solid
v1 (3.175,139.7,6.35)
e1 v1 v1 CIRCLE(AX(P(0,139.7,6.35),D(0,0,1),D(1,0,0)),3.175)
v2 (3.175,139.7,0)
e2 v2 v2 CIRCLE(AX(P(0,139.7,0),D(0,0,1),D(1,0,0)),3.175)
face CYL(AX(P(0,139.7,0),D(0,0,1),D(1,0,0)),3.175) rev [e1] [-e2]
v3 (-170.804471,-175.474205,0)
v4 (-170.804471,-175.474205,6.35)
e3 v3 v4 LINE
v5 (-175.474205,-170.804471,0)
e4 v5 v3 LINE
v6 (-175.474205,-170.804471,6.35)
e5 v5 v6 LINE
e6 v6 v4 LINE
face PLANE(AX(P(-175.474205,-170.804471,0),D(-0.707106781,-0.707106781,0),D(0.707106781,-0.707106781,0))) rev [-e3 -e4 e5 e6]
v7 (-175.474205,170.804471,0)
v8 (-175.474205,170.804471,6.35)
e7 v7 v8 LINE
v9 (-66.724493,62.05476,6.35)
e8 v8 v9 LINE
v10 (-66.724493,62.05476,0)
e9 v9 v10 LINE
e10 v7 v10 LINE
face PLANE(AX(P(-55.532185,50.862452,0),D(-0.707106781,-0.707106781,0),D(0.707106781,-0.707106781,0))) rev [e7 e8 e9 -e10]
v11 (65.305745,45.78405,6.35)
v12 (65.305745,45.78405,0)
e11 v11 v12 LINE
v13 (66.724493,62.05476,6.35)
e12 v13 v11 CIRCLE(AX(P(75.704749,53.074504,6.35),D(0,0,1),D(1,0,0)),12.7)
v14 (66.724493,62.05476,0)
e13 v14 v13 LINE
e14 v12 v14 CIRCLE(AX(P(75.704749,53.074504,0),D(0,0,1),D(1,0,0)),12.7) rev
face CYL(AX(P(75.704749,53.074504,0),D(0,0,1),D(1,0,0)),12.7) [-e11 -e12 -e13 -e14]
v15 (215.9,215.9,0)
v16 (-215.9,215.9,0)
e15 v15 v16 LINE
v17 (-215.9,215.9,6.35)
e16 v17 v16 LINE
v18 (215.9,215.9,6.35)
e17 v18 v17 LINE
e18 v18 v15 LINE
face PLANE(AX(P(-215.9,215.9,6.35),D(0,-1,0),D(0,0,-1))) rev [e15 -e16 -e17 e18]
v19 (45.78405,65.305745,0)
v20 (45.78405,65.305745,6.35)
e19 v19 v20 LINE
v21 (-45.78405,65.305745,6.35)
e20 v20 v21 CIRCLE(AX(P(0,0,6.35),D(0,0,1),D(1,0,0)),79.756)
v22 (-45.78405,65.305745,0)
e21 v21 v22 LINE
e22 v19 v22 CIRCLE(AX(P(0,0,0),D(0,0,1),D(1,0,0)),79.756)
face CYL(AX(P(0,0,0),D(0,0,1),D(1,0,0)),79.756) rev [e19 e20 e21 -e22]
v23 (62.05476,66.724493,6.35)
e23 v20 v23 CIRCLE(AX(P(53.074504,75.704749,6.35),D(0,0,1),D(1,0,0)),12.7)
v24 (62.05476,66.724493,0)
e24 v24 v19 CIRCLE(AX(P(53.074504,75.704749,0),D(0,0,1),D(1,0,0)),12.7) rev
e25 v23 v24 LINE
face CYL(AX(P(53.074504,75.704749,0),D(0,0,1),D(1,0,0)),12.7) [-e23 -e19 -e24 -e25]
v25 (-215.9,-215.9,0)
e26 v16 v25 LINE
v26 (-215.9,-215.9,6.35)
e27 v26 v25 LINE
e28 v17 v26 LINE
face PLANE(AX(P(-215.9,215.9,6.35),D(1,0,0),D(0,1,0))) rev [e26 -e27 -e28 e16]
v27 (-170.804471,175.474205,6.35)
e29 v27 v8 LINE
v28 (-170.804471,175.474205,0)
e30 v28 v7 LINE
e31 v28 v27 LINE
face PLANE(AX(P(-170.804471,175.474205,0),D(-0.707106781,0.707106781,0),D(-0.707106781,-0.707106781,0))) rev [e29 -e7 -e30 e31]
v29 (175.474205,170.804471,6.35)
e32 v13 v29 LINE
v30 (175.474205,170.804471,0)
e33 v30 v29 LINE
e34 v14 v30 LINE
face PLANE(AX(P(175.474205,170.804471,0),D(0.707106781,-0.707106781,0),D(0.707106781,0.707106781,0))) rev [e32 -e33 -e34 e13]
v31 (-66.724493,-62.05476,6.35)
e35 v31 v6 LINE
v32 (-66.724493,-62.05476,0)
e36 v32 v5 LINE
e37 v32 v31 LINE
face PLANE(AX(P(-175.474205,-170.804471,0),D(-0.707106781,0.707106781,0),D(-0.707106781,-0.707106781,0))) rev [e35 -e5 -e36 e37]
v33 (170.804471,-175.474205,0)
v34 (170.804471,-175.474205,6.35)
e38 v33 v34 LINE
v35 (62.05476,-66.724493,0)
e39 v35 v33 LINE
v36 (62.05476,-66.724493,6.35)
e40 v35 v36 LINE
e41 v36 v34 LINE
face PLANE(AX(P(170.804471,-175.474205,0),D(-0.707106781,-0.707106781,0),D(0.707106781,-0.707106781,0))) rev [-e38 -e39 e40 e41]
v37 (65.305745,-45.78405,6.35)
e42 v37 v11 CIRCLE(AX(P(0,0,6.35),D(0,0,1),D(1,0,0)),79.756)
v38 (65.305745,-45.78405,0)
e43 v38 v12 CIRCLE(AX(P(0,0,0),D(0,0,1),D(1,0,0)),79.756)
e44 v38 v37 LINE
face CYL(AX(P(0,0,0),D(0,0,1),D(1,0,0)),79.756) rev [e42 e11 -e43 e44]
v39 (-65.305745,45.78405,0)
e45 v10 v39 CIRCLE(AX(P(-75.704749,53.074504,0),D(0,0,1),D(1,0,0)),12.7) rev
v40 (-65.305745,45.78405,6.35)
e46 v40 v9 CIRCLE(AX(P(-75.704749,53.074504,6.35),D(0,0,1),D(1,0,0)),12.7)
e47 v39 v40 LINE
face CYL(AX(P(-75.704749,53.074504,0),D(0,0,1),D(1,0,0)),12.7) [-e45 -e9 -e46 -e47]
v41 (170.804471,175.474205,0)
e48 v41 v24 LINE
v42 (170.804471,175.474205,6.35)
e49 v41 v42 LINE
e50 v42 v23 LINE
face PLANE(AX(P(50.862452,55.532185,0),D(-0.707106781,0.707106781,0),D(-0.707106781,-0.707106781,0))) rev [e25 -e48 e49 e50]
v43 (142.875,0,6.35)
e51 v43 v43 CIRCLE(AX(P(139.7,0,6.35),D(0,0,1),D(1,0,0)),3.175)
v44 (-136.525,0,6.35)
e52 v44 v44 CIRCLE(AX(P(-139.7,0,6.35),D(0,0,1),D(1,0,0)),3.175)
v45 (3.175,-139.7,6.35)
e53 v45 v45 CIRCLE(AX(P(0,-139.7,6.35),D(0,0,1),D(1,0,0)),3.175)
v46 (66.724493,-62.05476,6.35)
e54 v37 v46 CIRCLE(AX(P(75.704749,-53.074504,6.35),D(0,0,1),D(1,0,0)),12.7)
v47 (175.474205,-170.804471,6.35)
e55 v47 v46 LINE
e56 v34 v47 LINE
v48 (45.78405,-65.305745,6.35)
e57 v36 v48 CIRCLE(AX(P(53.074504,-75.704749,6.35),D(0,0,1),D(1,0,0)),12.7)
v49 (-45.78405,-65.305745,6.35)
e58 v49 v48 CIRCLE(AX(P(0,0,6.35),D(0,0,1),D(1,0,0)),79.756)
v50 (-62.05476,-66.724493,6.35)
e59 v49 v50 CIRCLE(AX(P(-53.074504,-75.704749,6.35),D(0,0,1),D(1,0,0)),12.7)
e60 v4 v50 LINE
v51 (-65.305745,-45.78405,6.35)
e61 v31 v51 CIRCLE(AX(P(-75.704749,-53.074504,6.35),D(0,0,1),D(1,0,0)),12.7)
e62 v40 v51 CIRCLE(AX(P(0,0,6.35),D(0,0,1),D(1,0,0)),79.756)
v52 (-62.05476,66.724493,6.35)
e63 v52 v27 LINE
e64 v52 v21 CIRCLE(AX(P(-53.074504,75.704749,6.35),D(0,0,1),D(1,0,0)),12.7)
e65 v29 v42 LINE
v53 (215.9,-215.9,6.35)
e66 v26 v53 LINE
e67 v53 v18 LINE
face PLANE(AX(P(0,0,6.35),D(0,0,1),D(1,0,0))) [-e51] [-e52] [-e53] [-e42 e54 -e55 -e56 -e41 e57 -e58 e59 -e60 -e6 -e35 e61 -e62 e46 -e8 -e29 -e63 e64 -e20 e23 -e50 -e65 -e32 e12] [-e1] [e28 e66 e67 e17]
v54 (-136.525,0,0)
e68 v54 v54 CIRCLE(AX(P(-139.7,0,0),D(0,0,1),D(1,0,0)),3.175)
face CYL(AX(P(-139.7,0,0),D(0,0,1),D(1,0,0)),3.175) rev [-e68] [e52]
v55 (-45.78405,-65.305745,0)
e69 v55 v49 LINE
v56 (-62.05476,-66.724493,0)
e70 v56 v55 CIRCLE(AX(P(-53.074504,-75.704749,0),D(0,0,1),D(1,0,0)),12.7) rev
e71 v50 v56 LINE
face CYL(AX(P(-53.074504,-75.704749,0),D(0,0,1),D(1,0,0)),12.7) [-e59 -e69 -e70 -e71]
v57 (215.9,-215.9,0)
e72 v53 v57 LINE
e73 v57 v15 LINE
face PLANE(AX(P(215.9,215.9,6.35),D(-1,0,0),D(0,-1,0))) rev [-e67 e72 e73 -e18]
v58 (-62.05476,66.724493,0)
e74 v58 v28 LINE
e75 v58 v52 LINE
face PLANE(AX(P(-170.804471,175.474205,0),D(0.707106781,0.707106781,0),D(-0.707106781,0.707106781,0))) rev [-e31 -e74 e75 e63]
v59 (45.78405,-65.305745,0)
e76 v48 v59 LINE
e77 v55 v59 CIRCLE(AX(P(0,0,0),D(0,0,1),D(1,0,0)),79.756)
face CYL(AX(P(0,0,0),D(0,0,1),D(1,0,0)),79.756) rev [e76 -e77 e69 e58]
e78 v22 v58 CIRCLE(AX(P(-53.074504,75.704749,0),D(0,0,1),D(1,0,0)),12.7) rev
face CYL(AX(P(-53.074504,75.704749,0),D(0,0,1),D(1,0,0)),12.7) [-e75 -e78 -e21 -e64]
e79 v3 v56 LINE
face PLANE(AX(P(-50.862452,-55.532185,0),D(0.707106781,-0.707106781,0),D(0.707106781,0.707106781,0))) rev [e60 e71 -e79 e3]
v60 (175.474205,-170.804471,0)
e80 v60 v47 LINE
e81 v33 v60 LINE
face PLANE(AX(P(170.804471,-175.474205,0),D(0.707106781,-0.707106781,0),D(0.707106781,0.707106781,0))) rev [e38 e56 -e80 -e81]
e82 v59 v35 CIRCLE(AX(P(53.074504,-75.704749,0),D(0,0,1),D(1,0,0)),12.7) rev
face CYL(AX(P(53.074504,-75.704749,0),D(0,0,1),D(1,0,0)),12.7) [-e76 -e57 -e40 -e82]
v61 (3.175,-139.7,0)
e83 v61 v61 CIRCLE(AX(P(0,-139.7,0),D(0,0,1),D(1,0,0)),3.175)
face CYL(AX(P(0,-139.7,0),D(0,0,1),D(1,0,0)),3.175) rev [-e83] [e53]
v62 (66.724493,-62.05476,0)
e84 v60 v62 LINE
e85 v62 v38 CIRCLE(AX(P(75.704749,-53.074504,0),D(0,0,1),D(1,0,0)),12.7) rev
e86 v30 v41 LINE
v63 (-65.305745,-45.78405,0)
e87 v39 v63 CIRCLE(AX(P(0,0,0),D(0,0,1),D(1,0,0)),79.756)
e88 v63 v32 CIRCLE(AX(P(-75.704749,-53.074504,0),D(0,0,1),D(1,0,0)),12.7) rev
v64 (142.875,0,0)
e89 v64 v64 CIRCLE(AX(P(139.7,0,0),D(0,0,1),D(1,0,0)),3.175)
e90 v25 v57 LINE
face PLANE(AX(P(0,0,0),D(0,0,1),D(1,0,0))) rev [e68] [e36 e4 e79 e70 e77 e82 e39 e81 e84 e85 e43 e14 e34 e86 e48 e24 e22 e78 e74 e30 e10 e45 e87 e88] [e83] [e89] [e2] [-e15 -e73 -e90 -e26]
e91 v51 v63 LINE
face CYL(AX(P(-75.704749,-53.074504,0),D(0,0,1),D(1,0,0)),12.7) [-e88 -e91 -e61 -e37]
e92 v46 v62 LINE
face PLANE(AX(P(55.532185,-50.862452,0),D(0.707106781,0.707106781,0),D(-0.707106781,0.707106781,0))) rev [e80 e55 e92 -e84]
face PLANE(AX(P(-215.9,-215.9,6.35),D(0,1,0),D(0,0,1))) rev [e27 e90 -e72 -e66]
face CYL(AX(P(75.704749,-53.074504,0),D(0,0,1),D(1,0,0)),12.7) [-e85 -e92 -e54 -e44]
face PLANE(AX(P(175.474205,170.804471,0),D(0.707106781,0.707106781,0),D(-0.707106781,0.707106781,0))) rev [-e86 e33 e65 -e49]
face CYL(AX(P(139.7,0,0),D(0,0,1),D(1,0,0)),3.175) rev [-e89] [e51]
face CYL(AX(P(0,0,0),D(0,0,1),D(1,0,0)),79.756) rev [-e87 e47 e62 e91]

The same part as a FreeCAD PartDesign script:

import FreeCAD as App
import Part
import Sketcher

V = App.Vector
Q = App.Units.Quantity


def edges_at(feature, points):
    """Names of the edges that pass closest to the given points."""
    edges = feature.Shape.Edges
    near = lambda p: min(range(len(edges)), key=lambda i: edges[i].distToShape(Part.Vertex(*p))[0])
    return sorted({f"Edge{near(p) + 1}" for p in points})

doc = App.newDocument("Part")
params = doc.addObject("Spreadsheet::Sheet", "Params")
for row, (alias, value) in enumerate([
    ("sketch1_width", "17 in"),
    ("pad1_length", "0.25 in"),
    ("sketch2_diameter", "6.28 in"),
    ("pocket1_length", "0.25 in"),
    ("sketch3_length", "0.26 in"),
    ("pocket2_length", "0.25 in"),
    ("fillet_radius", "0.5 in"),
    ("sketch4_diameter", "0.25 in"),
    ("pocket3_length", "0.25 in"),
], start=1):
    params.set(f"A{row}", alias)
    params.set(f"B{row}", "=" + value)
    params.setAlias(f"B{row}", alias)

body = doc.addObject("PartDesign::Body", "Body")

sketch1 = body.newObject("Sketcher::SketchObject", "Sketch")
sketch1.AttachmentSupport = (doc.getObject("XY_Plane"), [""])
sketch1.MapMode = "FlatFace"
sketch1.addGeometry(Part.LineSegment(V(-215.9, 215.9, 0), V(-215.9, -215.9, 0)), False)
sketch1.addGeometry(Part.LineSegment(V(-215.9, -215.9, 0), V(215.9, -215.9, 0)), False)
sketch1.addGeometry(Part.LineSegment(V(215.9, -215.9, 0), V(215.9, 215.9, 0)), False)
sketch1.addGeometry(Part.LineSegment(V(215.9, 215.9, 0), V(-215.9, 215.9, 0)), False)
sketch1.addConstraint(Sketcher.Constraint("Coincident", 0, 2, 1, 1))
sketch1.addConstraint(Sketcher.Constraint("Coincident", 1, 2, 2, 1))
sketch1.addConstraint(Sketcher.Constraint("Coincident", 2, 2, 3, 1))
sketch1.addConstraint(Sketcher.Constraint("Coincident", 3, 2, 0, 1))
sketch1.addConstraint(Sketcher.Constraint("Vertical", 0))
sketch1.addConstraint(Sketcher.Constraint("Horizontal", 1))
sketch1.addConstraint(Sketcher.Constraint("Vertical", 2))
sketch1.addConstraint(Sketcher.Constraint("Horizontal", 3))
sketch1.addConstraint(Sketcher.Constraint("Symmetric", 0, 2, 2, 2, -1, 1))
sketch1.addConstraint(Sketcher.Constraint("Equal", 3, 0))
sketch1.addConstraint(Sketcher.Constraint("DistanceX", 1, 1, 1, 2, Q("17 in")))
sketch1.setExpression("Constraints[10]", "Params.sketch1_width")
pad1 = body.newObject("PartDesign::Pad", "Pad")
pad1.Profile = sketch1
pad1.setExpression("Length", "Params.pad1_length")

sketch2 = body.newObject("Sketcher::SketchObject", "Sketch001")
sketch2.AttachmentSupport = (doc.getObject("XY_Plane"), [""])
sketch2.MapMode = "FlatFace"
sketch2.AttachmentOffset = App.Placement(V(0, 0, 0.25 * 25.4), App.Rotation())
sketch2.addGeometry(Part.Circle(V(0, 0, 0), V(0, 0, 1), 79.756), False)
sketch2.addConstraint(Sketcher.Constraint("Coincident", 0, 3, -1, 1))
sketch2.addConstraint(Sketcher.Constraint("Diameter", 0, Q("6.28 in")))
sketch2.setExpression("Constraints[1]", "Params.sketch2_diameter")
pocket1 = body.newObject("PartDesign::Pocket", "Pocket")
pocket1.Profile = sketch2
pocket1.setExpression("Length", "Params.pocket1_length")

sketch3 = body.newObject("Sketcher::SketchObject", "Sketch002")
sketch3.AttachmentSupport = (doc.getObject("XY_Plane"), [""])
sketch3.MapMode = "FlatFace"
sketch3.AttachmentOffset = App.Placement(V(0, 0, 0.25 * 25.4), App.Rotation())
sketch3.addGeometry(Part.LineSegment(V(-170.804471, 175.474205, 0), V(-175.474205, 170.804471, 0)), False)
sketch3.addGeometry(Part.LineSegment(V(-175.474205, 170.804471, 0), V(-55.532185, 50.862452, 0)), False)
sketch3.addGeometry(Part.LineSegment(V(-55.532185, 50.862452, 0), V(-50.862452, 55.532185, 0)), False)
sketch3.addGeometry(Part.LineSegment(V(-50.862452, 55.532185, 0), V(-170.804471, 175.474205, 0)), False)
sketch3.addGeometry(Part.LineSegment(V(175.474205, 170.804471, 0), V(170.804471, 175.474205, 0)), False)
sketch3.addGeometry(Part.LineSegment(V(170.804471, 175.474205, 0), V(50.862452, 55.532185, 0)), False)
sketch3.addGeometry(Part.LineSegment(V(50.862452, 55.532185, 0), V(55.532185, 50.862452, 0)), False)
sketch3.addGeometry(Part.LineSegment(V(55.532185, 50.862452, 0), V(175.474205, 170.804471, 0)), False)
sketch3.addGeometry(Part.LineSegment(V(170.804471, -175.474205, 0), V(175.474205, -170.804471, 0)), False)
sketch3.addGeometry(Part.LineSegment(V(175.474205, -170.804471, 0), V(55.532185, -50.862452, 0)), False)
sketch3.addGeometry(Part.LineSegment(V(55.532185, -50.862452, 0), V(50.862452, -55.532185, 0)), False)
sketch3.addGeometry(Part.LineSegment(V(50.862452, -55.532185, 0), V(170.804471, -175.474205, 0)), False)
sketch3.addGeometry(Part.LineSegment(V(-175.474205, -170.804471, 0), V(-170.804471, -175.474205, 0)), False)
sketch3.addGeometry(Part.LineSegment(V(-170.804471, -175.474205, 0), V(-50.862452, -55.532185, 0)), False)
sketch3.addGeometry(Part.LineSegment(V(-50.862452, -55.532185, 0), V(-55.532185, -50.862452, 0)), False)
sketch3.addGeometry(Part.LineSegment(V(-55.532185, -50.862452, 0), V(-175.474205, -170.804471, 0)), False)
sketch3.addConstraint(Sketcher.Constraint("Coincident", 0, 2, 1, 1))
sketch3.addConstraint(Sketcher.Constraint("Coincident", 1, 2, 2, 1))
sketch3.addConstraint(Sketcher.Constraint("Coincident", 2, 2, 3, 1))
sketch3.addConstraint(Sketcher.Constraint("Coincident", 3, 2, 0, 1))
sketch3.addConstraint(Sketcher.Constraint("Coincident", 4, 2, 5, 1))
sketch3.addConstraint(Sketcher.Constraint("Coincident", 5, 2, 6, 1))
sketch3.addConstraint(Sketcher.Constraint("Coincident", 6, 2, 7, 1))
sketch3.addConstraint(Sketcher.Constraint("Coincident", 7, 2, 4, 1))
sketch3.addConstraint(Sketcher.Constraint("Coincident", 8, 2, 9, 1))
sketch3.addConstraint(Sketcher.Constraint("Coincident", 9, 2, 10, 1))
sketch3.addConstraint(Sketcher.Constraint("Coincident", 10, 2, 11, 1))
sketch3.addConstraint(Sketcher.Constraint("Coincident", 11, 2, 8, 1))
sketch3.addConstraint(Sketcher.Constraint("Coincident", 12, 2, 13, 1))
sketch3.addConstraint(Sketcher.Constraint("Coincident", 13, 2, 14, 1))
sketch3.addConstraint(Sketcher.Constraint("Coincident", 14, 2, 15, 1))
sketch3.addConstraint(Sketcher.Constraint("Coincident", 15, 2, 12, 1))
sketch3.addConstraint(Sketcher.Constraint("Symmetric", 0, 2, 8, 2, -1, 1))
sketch3.addConstraint(Sketcher.Constraint("Symmetric", 1, 2, 9, 2, -1, 1))
sketch3.addConstraint(Sketcher.Constraint("Symmetric", 2, 2, 10, 2, -1, 1))
sketch3.addConstraint(Sketcher.Constraint("Symmetric", 3, 2, 11, 2, -1, 1))
sketch3.addConstraint(Sketcher.Constraint("Symmetric", 4, 2, 12, 2, -1, 1))
sketch3.addConstraint(Sketcher.Constraint("Symmetric", 5, 2, 13, 2, -1, 1))
sketch3.addConstraint(Sketcher.Constraint("Symmetric", 6, 2, 14, 2, -1, 1))
sketch3.addConstraint(Sketcher.Constraint("Symmetric", 7, 2, 15, 2, -1, 1))
sketch3.addConstraint(Sketcher.Constraint("Symmetric", 3, 2, 4, 2, -2))
sketch3.addConstraint(Sketcher.Constraint("Symmetric", 2, 2, 5, 2, -2))
sketch3.addConstraint(Sketcher.Constraint("Symmetric", 1, 2, 6, 2, -2))
sketch3.addConstraint(Sketcher.Constraint("Symmetric", 0, 2, 7, 2, -2))
sketch3.addConstraint(Sketcher.Constraint("Perpendicular", 0, 1))
sketch3.addConstraint(Sketcher.Constraint("Perpendicular", 1, 2))
sketch3.addConstraint(Sketcher.Constraint("Perpendicular", 2, 3))
sketch3.addConstraint(Sketcher.Constraint("Parallel", 3, 4))
sketch3.addConstraint(Sketcher.Constraint("Distance", 0, Q("0.26 in")))
sketch3.addConstraint(Sketcher.Constraint("Distance", 1, 169.623631))
sketch3.addConstraint(Sketcher.Constraint("DistanceY", -1, 1, 0, 2, 170.804471))
sketch3.addConstraint(Sketcher.Constraint("DistanceX", 2, 2, -1, 1, 50.862452))
sketch3.setExpression("Constraints[32]", "Params.sketch3_length")
pocket2 = body.newObject("PartDesign::Pocket", "Pocket001")
pocket2.Profile = sketch3
pocket2.setExpression("Length", "Params.pocket2_length")
doc.recompute()

fillet = body.newObject("PartDesign::Fillet", "Fillet")
fillet.Base = (pocket2, edges_at(pocket2, [
    (-54.013, 58.683, 3.175),
    (-58.683, 54.013, 3.175),
    (58.683, 54.013, 3.175),
    (54.013, 58.683, 3.175),
    (54.013, -58.683, 3.175),
    (58.683, -54.013, 3.175),
    (-58.683, -54.013, 3.175),
    (-54.013, -58.683, 3.175),
]))
fillet.setExpression("Radius", "Params.fillet_radius")

sketch4 = body.newObject("Sketcher::SketchObject", "Sketch003")
sketch4.AttachmentSupport = (doc.getObject("XY_Plane"), [""])
sketch4.MapMode = "FlatFace"
sketch4.AttachmentOffset = App.Placement(V(0, 0, 0.25 * 25.4), App.Rotation())
sketch4.addGeometry(Part.Circle(V(0, 139.7, 0), V(0, 0, 1), 3.175), False)
sketch4.addGeometry(Part.Circle(V(139.7, 0, 0), V(0, 0, 1), 3.175), False)
sketch4.addGeometry(Part.Circle(V(0, -139.7, 0), V(0, 0, 1), 3.175), False)
sketch4.addGeometry(Part.Circle(V(-139.7, 0, 0), V(0, 0, 1), 3.175), False)
sketch4.addConstraint(Sketcher.Constraint("Equal", 0, 1))
sketch4.addConstraint(Sketcher.Constraint("Equal", 1, 2))
sketch4.addConstraint(Sketcher.Constraint("Equal", 2, 3))
sketch4.addConstraint(Sketcher.Constraint("Symmetric", 0, 3, 2, 3, -1, 1))
sketch4.addConstraint(Sketcher.Constraint("Symmetric", 1, 3, 3, 3, -1, 1))
sketch4.addConstraint(Sketcher.Constraint("PointOnObject", 0, 3, -2))
sketch4.addConstraint(Sketcher.Constraint("PointOnObject", 1, 3, -1))
sketch4.addConstraint(Sketcher.Constraint("Diameter", 0, Q("0.25 in")))
sketch4.addConstraint(Sketcher.Constraint("DistanceY", 2, 3, 0, 3, Q("11 in")))
sketch4.addConstraint(Sketcher.Constraint("DistanceX", 3, 3, 1, 3, Q("11 in")))
sketch4.setExpression("Constraints[7]", "Params.sketch4_diameter")
pocket3 = body.newObject("PartDesign::Pocket", "Pocket002")
pocket3.Profile = sketch4
pocket3.setExpression("Length", "Params.pocket3_length")

doc.recompute()
